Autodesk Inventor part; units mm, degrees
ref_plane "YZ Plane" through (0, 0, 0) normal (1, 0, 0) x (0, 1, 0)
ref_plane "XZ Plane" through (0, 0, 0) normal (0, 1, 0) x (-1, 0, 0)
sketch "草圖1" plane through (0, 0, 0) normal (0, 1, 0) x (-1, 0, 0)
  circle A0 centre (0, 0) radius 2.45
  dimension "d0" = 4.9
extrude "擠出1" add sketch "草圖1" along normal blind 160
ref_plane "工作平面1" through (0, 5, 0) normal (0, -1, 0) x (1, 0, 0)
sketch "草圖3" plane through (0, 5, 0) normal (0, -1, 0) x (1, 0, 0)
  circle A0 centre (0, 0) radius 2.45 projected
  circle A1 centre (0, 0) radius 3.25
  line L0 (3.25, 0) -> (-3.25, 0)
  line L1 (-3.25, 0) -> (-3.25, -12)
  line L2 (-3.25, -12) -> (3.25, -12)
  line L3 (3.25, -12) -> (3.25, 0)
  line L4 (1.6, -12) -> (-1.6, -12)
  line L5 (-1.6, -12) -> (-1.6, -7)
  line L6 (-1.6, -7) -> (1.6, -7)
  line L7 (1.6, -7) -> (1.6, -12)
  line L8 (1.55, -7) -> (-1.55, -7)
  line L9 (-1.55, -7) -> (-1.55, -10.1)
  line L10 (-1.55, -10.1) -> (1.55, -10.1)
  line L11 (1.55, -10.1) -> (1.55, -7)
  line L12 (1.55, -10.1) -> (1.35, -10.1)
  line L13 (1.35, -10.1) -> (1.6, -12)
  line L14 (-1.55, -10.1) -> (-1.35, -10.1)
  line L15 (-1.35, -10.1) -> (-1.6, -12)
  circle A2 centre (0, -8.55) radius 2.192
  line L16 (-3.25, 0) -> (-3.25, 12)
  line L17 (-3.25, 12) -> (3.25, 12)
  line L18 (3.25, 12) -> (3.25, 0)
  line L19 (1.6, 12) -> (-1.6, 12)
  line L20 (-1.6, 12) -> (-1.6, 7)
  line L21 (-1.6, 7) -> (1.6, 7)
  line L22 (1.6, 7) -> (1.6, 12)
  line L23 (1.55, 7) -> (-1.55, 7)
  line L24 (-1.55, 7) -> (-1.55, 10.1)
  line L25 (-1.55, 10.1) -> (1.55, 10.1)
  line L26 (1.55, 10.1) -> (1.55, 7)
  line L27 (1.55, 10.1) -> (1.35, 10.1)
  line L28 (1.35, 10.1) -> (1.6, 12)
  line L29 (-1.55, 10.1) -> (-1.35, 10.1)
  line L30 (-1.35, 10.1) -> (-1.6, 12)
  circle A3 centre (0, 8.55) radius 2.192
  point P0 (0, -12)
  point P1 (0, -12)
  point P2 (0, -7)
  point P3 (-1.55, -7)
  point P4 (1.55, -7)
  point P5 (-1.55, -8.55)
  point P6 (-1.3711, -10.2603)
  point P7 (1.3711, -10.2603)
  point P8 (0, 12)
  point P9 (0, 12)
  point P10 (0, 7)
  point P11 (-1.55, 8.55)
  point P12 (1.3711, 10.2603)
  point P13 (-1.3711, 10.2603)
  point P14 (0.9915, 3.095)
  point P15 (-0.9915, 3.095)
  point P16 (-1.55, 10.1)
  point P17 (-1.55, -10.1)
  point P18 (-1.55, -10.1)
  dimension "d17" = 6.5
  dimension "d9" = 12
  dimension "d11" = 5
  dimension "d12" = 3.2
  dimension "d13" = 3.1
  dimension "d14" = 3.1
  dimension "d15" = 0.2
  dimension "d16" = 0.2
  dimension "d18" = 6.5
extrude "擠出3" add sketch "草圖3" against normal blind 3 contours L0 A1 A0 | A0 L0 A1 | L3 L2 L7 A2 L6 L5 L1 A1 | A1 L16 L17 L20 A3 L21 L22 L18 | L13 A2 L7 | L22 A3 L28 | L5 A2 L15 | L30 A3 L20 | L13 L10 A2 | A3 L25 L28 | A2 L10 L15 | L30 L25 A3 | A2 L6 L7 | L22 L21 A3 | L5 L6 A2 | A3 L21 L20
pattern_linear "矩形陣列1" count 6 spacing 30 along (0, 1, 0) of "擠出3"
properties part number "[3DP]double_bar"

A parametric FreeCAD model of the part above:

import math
import FreeCAD as App
import Part
import Sketcher

V = App.Vector
Q = App.Units.Quantity

doc = App.newDocument("Part")
body = doc.addObject("PartDesign::Body", "Body")

sketch1 = doc.addObject("Sketcher::SketchObject", "Sketch")
body.addObject(sketch1)
sketch1.AttachmentSupport = (doc.XZ_Plane, [""])
sketch1.MapMode = "FlatFace"
sketch1.addGeometry(Part.Circle(V(0, 0, 0), V(0, 0, 1), 2.45), False)
sketch1.addConstraint([
    Sketcher.Constraint("Coincident", 0, 3, -1, 1),
    Sketcher.Constraint("Diameter", 0, Q("4.9 mm")),
])
pad1 = doc.addObject("PartDesign::Pad", "Pad")
body.addObject(pad1)
pad1.Profile = sketch1
pad1.Length = 160
pad1.Reversed = True

sketch2 = doc.addObject("Sketcher::SketchObject", "Sketch001")
body.addObject(sketch2)
sketch2.AttachmentSupport = (doc.XZ_Plane, [""])
sketch2.MapMode = "FlatFace"
sketch2.AttachmentOffset = App.Placement(V(0, 0, -5), App.Rotation())
sketch2.addGeometry([
    Part.LineSegment(V(3.25, -12, 0), V(3.25, 12, 0)),
    Part.LineSegment(V(3.25, 12, 0), V(1.6, 12, 0)),
    Part.LineSegment(V(1.6, 12, 0), V(1.35, 10.1, 0)),
    Part.LineSegment(V(1.35, 10.1, 0), V(1.55, 10.1, 0)),
    Part.ArcOfCircle(Part.Circle(V(0, 8.55, 0), V(0, 0, 1), 2.192), math.radians(135), math.radians(405)),
    Part.LineSegment(V(-1.55, 10.1, 0), V(-1.35, 10.1, 0)),
    Part.LineSegment(V(-1.35, 10.1, 0), V(-1.6, 12, 0)),
    Part.LineSegment(V(-1.6, 12, 0), V(-3.25, 12, 0)),
    Part.LineSegment(V(-3.25, 12, 0), V(-3.25, -12, 0)),
    Part.LineSegment(V(-3.25, -12, 0), V(-1.6, -12, 0)),
    Part.LineSegment(V(-1.6, -12, 0), V(-1.35, -10.1, 0)),
    Part.LineSegment(V(-1.35, -10.1, 0), V(-1.55, -10.1, 0)),
    Part.ArcOfCircle(Part.Circle(V(0, -8.55, 0), V(0, 0, 1), 2.192), math.radians(-45), math.radians(225)),
    Part.LineSegment(V(1.55, -10.1, 0), V(1.35, -10.1, 0)),
    Part.LineSegment(V(1.35, -10.1, 0), V(1.6, -12, 0)),
    Part.LineSegment(V(1.6, -12, 0), V(3.25, -12, 0)),
    Part.Circle(V(0, 0, 0), V(0, 0, 1), 2.45),
], False)
sketch2.addConstraint([
    Sketcher.Constraint("Coincident", 0, 2, 1, 1),
    Sketcher.Constraint("Coincident", 1, 2, 2, 1),
    Sketcher.Constraint("Coincident", 2, 2, 3, 1),
    Sketcher.Constraint("Coincident", 3, 2, 4, 2),
    Sketcher.Constraint("Coincident", 4, 1, 5, 1),
    Sketcher.Constraint("Coincident", 5, 2, 6, 1),
    Sketcher.Constraint("Coincident", 6, 2, 7, 1),
    Sketcher.Constraint("Coincident", 7, 2, 8, 1),
    Sketcher.Constraint("Coincident", 8, 2, 9, 1),
    Sketcher.Constraint("Coincident", 9, 2, 10, 1),
    Sketcher.Constraint("Coincident", 10, 2, 11, 1),
    Sketcher.Constraint("Coincident", 11, 2, 12, 2),
    Sketcher.Constraint("Coincident", 12, 1, 13, 1),
    Sketcher.Constraint("Coincident", 13, 2, 14, 1),
    Sketcher.Constraint("Coincident", 14, 2, 15, 1),
    Sketcher.Constraint("Coincident", 15, 2, 0, 1),
    Sketcher.Constraint("Vertical", 0),
    Sketcher.Constraint("Horizontal", 1),
    Sketcher.Constraint("Horizontal", 3),
    Sketcher.Constraint("Horizontal", 5),
    Sketcher.Constraint("Horizontal", 7),
    Sketcher.Constraint("Vertical", 8),
    Sketcher.Constraint("Horizontal", 9),
    Sketcher.Constraint("Horizontal", 11),
    Sketcher.Constraint("Horizontal", 13),
    Sketcher.Constraint("Horizontal", 15),
    Sketcher.Constraint("Coincident", 16, 3, -1, 1),
    Sketcher.Constraint("Equal", 4, 12),
    Sketcher.Constraint("Symmetric", 4, 3, 12, 3, -1, 1),
    Sketcher.Constraint("Symmetric", 0, 2, 8, 2, -1, 1),
    Sketcher.Constraint("Symmetric", 2, 2, 10, 2, -1, 1),
    Sketcher.Constraint("Symmetric", 5, 2, 13, 2, -1, 1),
    Sketcher.Constraint("Symmetric", 6, 2, 14, 2, -1, 1),
    Sketcher.Constraint("Symmetric", 3, 2, 4, 1, -2),
    Sketcher.Constraint("Symmetric", 1, 2, 6, 2, -2),
    Sketcher.Constraint("Parallel", 2, 10),
    Sketcher.Constraint("Vertical", 5, 2, 10, 2),
    Sketcher.Constraint("DistanceX", 3, 1, 3, 2, Q("0.2 mm")),
    Sketcher.Constraint("DistanceY", -1, 1, 0, 2, Q("12 mm")),
    Sketcher.Constraint("Diameter", 16, Q("4.9 mm")),
    Sketcher.Constraint("DistanceX", 4, 1, 3, 2, Q("3.1 mm")),
    Sketcher.Constraint("DistanceX", 6, 2, 1, 2, Q("3.2 mm")),
    Sketcher.Constraint("Radius", 4, Q("2.192 mm")),
    Sketcher.Constraint("DistanceX", 1, 2, 1, 1, Q("1.65 mm")),
    Sketcher.Constraint("DistanceY", -1, 1, 2, 2, Q("10.1 mm")),
])
pad2 = doc.addObject("PartDesign::Pad", "Pad001")
body.addObject(pad2)
pad2.Profile = sketch2
pad2.Length = 3
pad2.Reversed = True
doc.recompute()

linearpattern = doc.addObject("PartDesign::LinearPattern", "LinearPattern")
body.addObject(linearpattern)
linearpattern.Originals = [pad2]
linearpattern.Direction = (doc.Y_Axis, [""])
linearpattern.Mode = "offset"
linearpattern.Offset = 30
linearpattern.Occurrences = 6
body.Tip = linearpattern

doc.recompute()
